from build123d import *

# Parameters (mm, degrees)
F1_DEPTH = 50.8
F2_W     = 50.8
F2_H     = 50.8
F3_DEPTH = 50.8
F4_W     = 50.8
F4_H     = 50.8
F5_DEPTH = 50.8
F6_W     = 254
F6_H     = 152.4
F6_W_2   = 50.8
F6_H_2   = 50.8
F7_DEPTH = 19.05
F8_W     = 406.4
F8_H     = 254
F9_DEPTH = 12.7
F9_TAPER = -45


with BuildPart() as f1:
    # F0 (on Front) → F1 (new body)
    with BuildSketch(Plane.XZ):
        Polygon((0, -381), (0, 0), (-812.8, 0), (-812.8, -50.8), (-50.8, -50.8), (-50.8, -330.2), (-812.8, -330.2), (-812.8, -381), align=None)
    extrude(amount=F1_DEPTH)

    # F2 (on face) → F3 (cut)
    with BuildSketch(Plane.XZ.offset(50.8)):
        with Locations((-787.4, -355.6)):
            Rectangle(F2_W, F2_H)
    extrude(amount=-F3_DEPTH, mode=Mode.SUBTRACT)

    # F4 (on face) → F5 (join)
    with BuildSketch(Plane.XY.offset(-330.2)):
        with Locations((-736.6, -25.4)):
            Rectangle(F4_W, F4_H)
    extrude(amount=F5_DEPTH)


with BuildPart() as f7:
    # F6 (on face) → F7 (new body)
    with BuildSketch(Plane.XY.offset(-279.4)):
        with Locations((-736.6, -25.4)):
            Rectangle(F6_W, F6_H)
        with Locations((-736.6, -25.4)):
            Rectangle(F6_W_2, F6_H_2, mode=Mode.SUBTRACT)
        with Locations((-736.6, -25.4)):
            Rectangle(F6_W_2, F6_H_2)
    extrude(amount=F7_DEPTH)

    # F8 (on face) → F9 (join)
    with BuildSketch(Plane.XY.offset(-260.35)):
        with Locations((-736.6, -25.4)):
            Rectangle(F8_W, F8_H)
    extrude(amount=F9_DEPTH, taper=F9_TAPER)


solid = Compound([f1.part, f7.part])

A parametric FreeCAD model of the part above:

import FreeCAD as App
import Part
import Sketcher
Q = App.Units.Quantity

doc = App.newDocument("Part")
body = doc.addObject("PartDesign::Body", "Body")

sketch1 = body.newObject("Sketcher::SketchObject", "Sketch")
sketch1.AttachmentSupport = (doc.getObject("XZ_Plane"), [""])
sketch1.MapMode = "FlatFace"
sketch1.addGeometry(Part.LineSegment(App.Vector(0, -381, 0), App.Vector(0, 0, 0)), False)
sketch1.addGeometry(Part.LineSegment(App.Vector(0, 0, 0), App.Vector(-812.8, 0, 0)), False)
sketch1.addGeometry(Part.LineSegment(App.Vector(-812.8, 0, 0), App.Vector(-812.8, -50.8, 0)), False)
sketch1.addGeometry(Part.LineSegment(App.Vector(-812.8, -50.8, 0), App.Vector(-50.8, -50.8, 0)), False)
sketch1.addGeometry(Part.LineSegment(App.Vector(-50.8, -50.8, 0), App.Vector(-50.8, -330.2, 0)), False)
sketch1.addGeometry(Part.LineSegment(App.Vector(-50.8, -330.2, 0), App.Vector(-812.8, -330.2, 0)), False)
sketch1.addGeometry(Part.LineSegment(App.Vector(-812.8, -330.2, 0), App.Vector(-812.8, -381, 0)), False)
sketch1.addGeometry(Part.LineSegment(App.Vector(-812.8, -381, 0), App.Vector(0, -381, 0)), False)
sketch1.addConstraint(Sketcher.Constraint("Coincident", 0, 2, 1, 1))
sketch1.addConstraint(Sketcher.Constraint("Coincident", 1, 2, 2, 1))
sketch1.addConstraint(Sketcher.Constraint("Coincident", 2, 2, 3, 1))
sketch1.addConstraint(Sketcher.Constraint("Coincident", 3, 2, 4, 1))
sketch1.addConstraint(Sketcher.Constraint("Coincident", 4, 2, 5, 1))
sketch1.addConstraint(Sketcher.Constraint("Coincident", 5, 2, 6, 1))
sketch1.addConstraint(Sketcher.Constraint("Coincident", 6, 2, 7, 1))
sketch1.addConstraint(Sketcher.Constraint("Coincident", 7, 2, 0, 1))
sketch1.addConstraint(Sketcher.Constraint("Vertical", 0))
sketch1.addConstraint(Sketcher.Constraint("Horizontal", 1))
sketch1.addConstraint(Sketcher.Constraint("Vertical", 2))
sketch1.addConstraint(Sketcher.Constraint("Horizontal", 3))
sketch1.addConstraint(Sketcher.Constraint("Vertical", 4))
sketch1.addConstraint(Sketcher.Constraint("Horizontal", 5))
sketch1.addConstraint(Sketcher.Constraint("Vertical", 6))
sketch1.addConstraint(Sketcher.Constraint("Horizontal", 7))
sketch1.addConstraint(Sketcher.Constraint("Coincident", 0, 2, -1, 1))
sketch1.addConstraint(Sketcher.Constraint("Vertical", 2, 2, 5, 2))
sketch1.addConstraint(Sketcher.Constraint("Equal", 2, 6))
sketch1.addConstraint(Sketcher.Constraint("DistanceX", 1, 2, 1, 1, Q("32 in")))
sketch1.addConstraint(Sketcher.Constraint("DistanceX", 3, 1, 3, 2, Q("30 in")))
sketch1.addConstraint(Sketcher.Constraint("DistanceY", 0, 1, 0, 2, Q("15 in")))
sketch1.addConstraint(Sketcher.Constraint("DistanceY", 2, 2, 2, 1, Q("2 in")))
pad1 = body.newObject("PartDesign::Pad", "Pad")
pad1.Profile = sketch1
pad1.Length = Q("2 in")

sketch2 = body.newObject("Sketcher::SketchObject", "Sketch001")
sketch2.AttachmentSupport = (doc.getObject("XZ_Plane"), [""])
sketch2.MapMode = "FlatFace"
sketch2.AttachmentOffset = App.Placement(App.Vector(0, 0, 2 * 25.4), App.Rotation())
sketch2.addGeometry(Part.LineSegment(App.Vector(-812.8, -330.2, 0), App.Vector(-812.8, -381, 0)), False)
sketch2.addGeometry(Part.LineSegment(App.Vector(-812.8, -381, 0), App.Vector(-762, -381, 0)), False)
sketch2.addGeometry(Part.LineSegment(App.Vector(-762, -381, 0), App.Vector(-762, -330.2, 0)), False)
sketch2.addGeometry(Part.LineSegment(App.Vector(-762, -330.2, 0), App.Vector(-812.8, -330.2, 0)), False)
sketch2.addConstraint(Sketcher.Constraint("Coincident", 0, 2, 1, 1))
sketch2.addConstraint(Sketcher.Constraint("Coincident", 1, 2, 2, 1))
sketch2.addConstraint(Sketcher.Constraint("Coincident", 2, 2, 3, 1))
sketch2.addConstraint(Sketcher.Constraint("Coincident", 3, 2, 0, 1))
sketch2.addConstraint(Sketcher.Constraint("Vertical", 0))
sketch2.addConstraint(Sketcher.Constraint("Horizontal", 1))
sketch2.addConstraint(Sketcher.Constraint("Vertical", 2))
sketch2.addConstraint(Sketcher.Constraint("Horizontal", 3))
sketch2.addConstraint(Sketcher.Constraint("Equal", 3, 0))
sketch2.addConstraint(Sketcher.Constraint("DistanceX", 1, 1, 1, 2, Q("2 in")))
sketch2.addConstraint(Sketcher.Constraint("DistanceX", 0, 2, -1, 1, Q("32 in")))
sketch2.addConstraint(Sketcher.Constraint("DistanceY", 0, 2, -1, 1, Q("15 in")))
pocket1 = body.newObject("PartDesign::Pocket", "Pocket")
pocket1.Profile = sketch2
pocket1.Length = Q("2 in")

sketch3 = body.newObject("Sketcher::SketchObject", "Sketch002")
sketch3.AttachmentSupport = (doc.getObject("XY_Plane"), [""])
sketch3.MapMode = "FlatFace"
sketch3.AttachmentOffset = App.Placement(App.Vector(0, 0, -13 * 25.4), App.Rotation())
sketch3.addGeometry(Part.LineSegment(App.Vector(-762, 0, 0), App.Vector(-762, -50.8, 0)), False)
sketch3.addGeometry(Part.LineSegment(App.Vector(-762, -50.8, 0), App.Vector(-711.2, -50.8, 0)), False)
sketch3.addGeometry(Part.LineSegment(App.Vector(-711.2, -50.8, 0), App.Vector(-711.2, 0, 0)), False)
sketch3.addGeometry(Part.LineSegment(App.Vector(-711.2, 0, 0), App.Vector(-762, 0, 0)), False)
sketch3.addConstraint(Sketcher.Constraint("Coincident", 0, 2, 1, 1))
sketch3.addConstraint(Sketcher.Constraint("Coincident", 1, 2, 2, 1))
sketch3.addConstraint(Sketcher.Constraint("Coincident", 2, 2, 3, 1))
sketch3.addConstraint(Sketcher.Constraint("Coincident", 3, 2, 0, 1))
sketch3.addConstraint(Sketcher.Constraint("Vertical", 0))
sketch3.addConstraint(Sketcher.Constraint("Horizontal", 1))
sketch3.addConstraint(Sketcher.Constraint("Vertical", 2))
sketch3.addConstraint(Sketcher.Constraint("Horizontal", 3))
sketch3.addConstraint(Sketcher.Constraint("PointOnObject", 2, 2, -1))
sketch3.addConstraint(Sketcher.Constraint("Equal", 3, 0))
sketch3.addConstraint(Sketcher.Constraint("DistanceX", 1, 1, 1, 2, Q("2 in")))
sketch3.addConstraint(Sketcher.Constraint("DistanceX", 0, 2, -1, 1, Q("30 in")))
pad2 = body.newObject("PartDesign::Pad", "Pad001")
pad2.Profile = sketch3
pad2.Length = Q("2 in")
body2 = doc.addObject("PartDesign::Body", "Body001")

sketch4 = body2.newObject("Sketcher::SketchObject", "Sketch003")
sketch4.AttachmentSupport = (doc.getObject("XY_Plane001"), [""])
sketch4.MapMode = "FlatFace"
sketch4.AttachmentOffset = App.Placement(App.Vector(0, 0, -11 * 25.4), App.Rotation())
sketch4.addGeometry(Part.LineSegment(App.Vector(-863.6, 50.8, 0), App.Vector(-863.6, -101.6, 0)), False)
sketch4.addGeometry(Part.LineSegment(App.Vector(-863.6, -101.6, 0), App.Vector(-609.6, -101.6, 0)), False)
sketch4.addGeometry(Part.LineSegment(App.Vector(-609.6, -101.6, 0), App.Vector(-609.6, 50.8, 0)), False)
sketch4.addGeometry(Part.LineSegment(App.Vector(-609.6, 50.8, 0), App.Vector(-863.6, 50.8, 0)), False)
sketch4.addConstraint(Sketcher.Constraint("Coincident", 0, 2, 1, 1))
sketch4.addConstraint(Sketcher.Constraint("Coincident", 1, 2, 2, 1))
sketch4.addConstraint(Sketcher.Constraint("Coincident", 2, 2, 3, 1))
sketch4.addConstraint(Sketcher.Constraint("Coincident", 3, 2, 0, 1))
sketch4.addConstraint(Sketcher.Constraint("Vertical", 0))
sketch4.addConstraint(Sketcher.Constraint("Horizontal", 1))
sketch4.addConstraint(Sketcher.Constraint("Vertical", 2))
sketch4.addConstraint(Sketcher.Constraint("Horizontal", 3))
sketch4.addConstraint(Sketcher.Constraint("DistanceX", 1, 1, 1, 2, Q("10 in")))
sketch4.addConstraint(Sketcher.Constraint("DistanceY", 0, 2, 0, 1, Q("6 in")))
sketch4.addConstraint(Sketcher.Constraint("DistanceX", 0, 2, -1, 1, Q("34 in")))
sketch4.addConstraint(Sketcher.Constraint("DistanceY", 0, 2, -1, 1, Q("4 in")))
pad3 = body2.newObject("PartDesign::Pad", "Pad002")
pad3.Profile = sketch4
pad3.Length = Q("0.75 in")

sketch5 = body2.newObject("Sketcher::SketchObject", "Sketch004")
sketch5.AttachmentSupport = (doc.getObject("XY_Plane001"), [""])
sketch5.MapMode = "FlatFace"
sketch5.AttachmentOffset = App.Placement(App.Vector(0, 0, -10.25 * 25.4), App.Rotation())
sketch5.addGeometry(Part.LineSegment(App.Vector(-939.8, 101.6, 0), App.Vector(-939.8, -152.4, 0)), False)
sketch5.addGeometry(Part.LineSegment(App.Vector(-939.8, -152.4, 0), App.Vector(-533.4, -152.4, 0)), False)
sketch5.addGeometry(Part.LineSegment(App.Vector(-533.4, -152.4, 0), App.Vector(-533.4, 101.6, 0)), False)
sketch5.addGeometry(Part.LineSegment(App.Vector(-533.4, 101.6, 0), App.Vector(-939.8, 101.6, 0)), False)
sketch5.addConstraint(Sketcher.Constraint("Coincident", 0, 2, 1, 1))
sketch5.addConstraint(Sketcher.Constraint("Coincident", 1, 2, 2, 1))
sketch5.addConstraint(Sketcher.Constraint("Coincident", 2, 2, 3, 1))
sketch5.addConstraint(Sketcher.Constraint("Coincident", 3, 2, 0, 1))
sketch5.addConstraint(Sketcher.Constraint("Vertical", 0))
sketch5.addConstraint(Sketcher.Constraint("Horizontal", 1))
sketch5.addConstraint(Sketcher.Constraint("Vertical", 2))
sketch5.addConstraint(Sketcher.Constraint("Horizontal", 3))
sketch5.addConstraint(Sketcher.Constraint("DistanceX", 1, 1, 1, 2, Q("16 in")))
sketch5.addConstraint(Sketcher.Constraint("DistanceY", 0, 2, 0, 1, Q("10 in")))
sketch5.addConstraint(Sketcher.Constraint("DistanceX", 0, 2, -1, 1, Q("37 in")))
sketch5.addConstraint(Sketcher.Constraint("DistanceY", 0, 2, -1, 1, Q("6 in")))
pad4 = body2.newObject("PartDesign::Pad", "Pad003")
pad4.Profile = sketch5
pad4.Length = Q("0.5 in")
pad4.TaperAngle = 45

doc.recompute()
